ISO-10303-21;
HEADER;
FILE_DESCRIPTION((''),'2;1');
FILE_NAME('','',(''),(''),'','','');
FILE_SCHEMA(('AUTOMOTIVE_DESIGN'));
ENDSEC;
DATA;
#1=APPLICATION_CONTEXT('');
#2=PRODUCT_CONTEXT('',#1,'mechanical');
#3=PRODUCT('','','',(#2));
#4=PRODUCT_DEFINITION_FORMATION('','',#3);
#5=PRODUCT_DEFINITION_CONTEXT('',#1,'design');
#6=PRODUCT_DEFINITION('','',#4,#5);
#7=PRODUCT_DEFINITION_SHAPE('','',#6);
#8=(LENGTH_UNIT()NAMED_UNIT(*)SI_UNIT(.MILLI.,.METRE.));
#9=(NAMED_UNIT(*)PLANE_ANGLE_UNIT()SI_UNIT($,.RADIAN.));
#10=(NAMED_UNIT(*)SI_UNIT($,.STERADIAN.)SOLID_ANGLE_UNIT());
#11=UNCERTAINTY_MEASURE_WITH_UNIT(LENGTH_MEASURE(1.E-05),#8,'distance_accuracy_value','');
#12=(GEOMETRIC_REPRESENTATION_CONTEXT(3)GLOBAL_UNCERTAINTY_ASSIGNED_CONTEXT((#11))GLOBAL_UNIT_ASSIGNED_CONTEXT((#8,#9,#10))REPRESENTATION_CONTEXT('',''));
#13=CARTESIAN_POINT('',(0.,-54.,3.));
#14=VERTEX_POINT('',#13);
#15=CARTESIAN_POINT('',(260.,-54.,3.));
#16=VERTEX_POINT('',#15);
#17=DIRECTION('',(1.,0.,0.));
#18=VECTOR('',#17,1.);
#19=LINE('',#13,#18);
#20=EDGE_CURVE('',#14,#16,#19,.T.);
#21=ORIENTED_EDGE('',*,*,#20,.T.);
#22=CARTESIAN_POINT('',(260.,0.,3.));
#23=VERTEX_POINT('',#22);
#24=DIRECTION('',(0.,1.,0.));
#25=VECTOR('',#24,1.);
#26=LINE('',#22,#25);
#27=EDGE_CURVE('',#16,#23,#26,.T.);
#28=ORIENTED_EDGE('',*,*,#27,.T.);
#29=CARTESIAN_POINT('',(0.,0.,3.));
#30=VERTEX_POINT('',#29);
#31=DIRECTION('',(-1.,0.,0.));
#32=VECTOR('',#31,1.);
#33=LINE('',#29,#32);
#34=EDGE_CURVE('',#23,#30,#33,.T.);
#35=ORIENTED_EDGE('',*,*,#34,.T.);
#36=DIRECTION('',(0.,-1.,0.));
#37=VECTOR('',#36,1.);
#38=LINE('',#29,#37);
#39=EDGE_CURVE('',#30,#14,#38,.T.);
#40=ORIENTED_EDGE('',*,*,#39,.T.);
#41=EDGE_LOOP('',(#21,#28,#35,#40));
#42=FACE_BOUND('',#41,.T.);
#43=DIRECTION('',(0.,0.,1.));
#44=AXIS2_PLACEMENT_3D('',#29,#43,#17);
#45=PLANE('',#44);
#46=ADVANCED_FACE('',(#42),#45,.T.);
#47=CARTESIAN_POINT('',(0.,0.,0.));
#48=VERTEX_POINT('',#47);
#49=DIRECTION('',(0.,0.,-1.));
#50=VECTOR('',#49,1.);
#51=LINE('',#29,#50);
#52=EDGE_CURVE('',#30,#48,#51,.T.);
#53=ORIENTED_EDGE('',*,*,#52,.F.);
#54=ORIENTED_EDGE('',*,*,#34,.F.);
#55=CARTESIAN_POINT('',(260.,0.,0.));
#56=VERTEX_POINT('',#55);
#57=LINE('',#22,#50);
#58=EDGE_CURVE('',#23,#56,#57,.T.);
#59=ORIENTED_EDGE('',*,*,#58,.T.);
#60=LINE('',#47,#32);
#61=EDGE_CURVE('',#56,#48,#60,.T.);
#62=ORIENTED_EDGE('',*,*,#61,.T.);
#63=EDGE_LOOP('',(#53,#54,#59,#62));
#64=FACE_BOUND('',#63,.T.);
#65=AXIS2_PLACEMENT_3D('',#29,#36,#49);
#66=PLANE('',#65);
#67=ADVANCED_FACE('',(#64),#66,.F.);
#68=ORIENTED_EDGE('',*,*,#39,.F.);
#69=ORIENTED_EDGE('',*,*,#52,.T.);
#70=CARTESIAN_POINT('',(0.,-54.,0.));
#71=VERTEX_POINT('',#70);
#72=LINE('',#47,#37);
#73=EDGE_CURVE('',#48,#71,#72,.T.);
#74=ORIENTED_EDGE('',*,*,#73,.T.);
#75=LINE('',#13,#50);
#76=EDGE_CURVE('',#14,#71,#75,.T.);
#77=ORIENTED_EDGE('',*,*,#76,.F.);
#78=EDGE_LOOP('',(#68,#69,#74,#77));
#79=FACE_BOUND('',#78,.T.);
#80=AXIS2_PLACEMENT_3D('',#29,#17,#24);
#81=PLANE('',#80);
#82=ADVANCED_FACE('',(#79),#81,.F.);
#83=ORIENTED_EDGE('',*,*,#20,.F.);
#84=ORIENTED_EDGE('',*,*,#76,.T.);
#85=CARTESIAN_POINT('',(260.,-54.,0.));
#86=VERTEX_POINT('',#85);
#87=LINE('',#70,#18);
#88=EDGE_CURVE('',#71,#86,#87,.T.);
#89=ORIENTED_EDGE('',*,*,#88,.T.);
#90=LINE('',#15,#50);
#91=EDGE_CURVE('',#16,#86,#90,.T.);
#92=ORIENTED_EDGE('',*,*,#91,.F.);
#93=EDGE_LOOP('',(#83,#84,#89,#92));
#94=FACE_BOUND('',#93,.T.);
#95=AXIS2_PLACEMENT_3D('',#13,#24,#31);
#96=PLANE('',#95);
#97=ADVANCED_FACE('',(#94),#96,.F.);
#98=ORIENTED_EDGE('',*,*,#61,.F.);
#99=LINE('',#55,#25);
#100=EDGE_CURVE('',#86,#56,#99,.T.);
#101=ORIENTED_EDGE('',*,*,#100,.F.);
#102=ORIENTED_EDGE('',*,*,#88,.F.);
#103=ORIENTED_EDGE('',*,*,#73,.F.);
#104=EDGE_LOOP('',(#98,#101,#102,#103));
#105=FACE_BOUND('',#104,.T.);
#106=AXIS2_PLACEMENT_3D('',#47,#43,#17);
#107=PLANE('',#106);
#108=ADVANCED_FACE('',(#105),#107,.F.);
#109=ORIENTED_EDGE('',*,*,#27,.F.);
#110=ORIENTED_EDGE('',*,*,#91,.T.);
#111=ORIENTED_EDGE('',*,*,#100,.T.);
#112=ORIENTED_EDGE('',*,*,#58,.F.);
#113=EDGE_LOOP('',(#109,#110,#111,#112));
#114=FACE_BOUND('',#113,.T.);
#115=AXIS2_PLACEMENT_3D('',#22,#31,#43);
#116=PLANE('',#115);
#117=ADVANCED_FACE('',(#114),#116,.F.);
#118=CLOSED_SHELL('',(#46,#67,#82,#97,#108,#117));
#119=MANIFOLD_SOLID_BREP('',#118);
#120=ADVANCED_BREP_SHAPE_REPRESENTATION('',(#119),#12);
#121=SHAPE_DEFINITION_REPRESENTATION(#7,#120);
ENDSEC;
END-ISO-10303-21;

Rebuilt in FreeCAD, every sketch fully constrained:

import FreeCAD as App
import Part
import Sketcher

V = App.Vector


def add_polygon(sketch, points):
    """Adds a closed chain of lines whose ends are joined by coincident constraints."""
    first, n = sketch.GeometryCount, len(points)
    for a, b in zip(points, points[1:] + points[:1]):
        sketch.addGeometry(Part.LineSegment(App.Vector(*a, 0), App.Vector(*b, 0)), False)
    for i in range(n):
        sketch.addConstraint(Sketcher.Constraint("Coincident", first + i, 2, first + (i + 1) % n, 1))

doc = App.newDocument("Part")
params = doc.addObject("Spreadsheet::Sheet", "Params")
for row, (alias, value) in enumerate([
    ("sketch1_width", "260 mm"),
    ("sketch1_height", "54 mm"),
    ("pad1_length", "3 mm"),
], start=1):
    params.set(f"A{row}", alias)
    params.set(f"B{row}", "=" + value)
    params.setAlias(f"B{row}", alias)

body = doc.addObject("PartDesign::Body", "Body")

sketch1 = doc.addObject("Sketcher::SketchObject", "Sketch")
body.addObject(sketch1)
sketch1.AttachmentSupport = (doc.XY_Plane, [""])
sketch1.MapMode = "FlatFace"
add_polygon(sketch1, [(0, 0), (0, -54), (260, -54), (260, 0)])
sketch1.addConstraint(Sketcher.Constraint("Vertical", 0))
sketch1.addConstraint(Sketcher.Constraint("Horizontal", 1))
sketch1.addConstraint(Sketcher.Constraint("Vertical", 2))
sketch1.addConstraint(Sketcher.Constraint("Horizontal", 3))
sketch1.addConstraint(Sketcher.Constraint("Coincident", 3, 2, -1, 1))
sketch1.addConstraint(Sketcher.Constraint("DistanceX", 1, 1, 1, 2, 260.0))
sketch1.addConstraint(Sketcher.Constraint("DistanceY", 0, 2, 0, 1, 54.0))
sketch1.setExpression("Constraints[9]", "Params.sketch1_width")
sketch1.setExpression("Constraints[10]", "Params.sketch1_height")
pad1 = doc.addObject("PartDesign::Pad", "Pad")
body.addObject(pad1)
pad1.Profile = sketch1
pad1.setExpression("Length", "Params.pad1_length")

doc.recompute()
